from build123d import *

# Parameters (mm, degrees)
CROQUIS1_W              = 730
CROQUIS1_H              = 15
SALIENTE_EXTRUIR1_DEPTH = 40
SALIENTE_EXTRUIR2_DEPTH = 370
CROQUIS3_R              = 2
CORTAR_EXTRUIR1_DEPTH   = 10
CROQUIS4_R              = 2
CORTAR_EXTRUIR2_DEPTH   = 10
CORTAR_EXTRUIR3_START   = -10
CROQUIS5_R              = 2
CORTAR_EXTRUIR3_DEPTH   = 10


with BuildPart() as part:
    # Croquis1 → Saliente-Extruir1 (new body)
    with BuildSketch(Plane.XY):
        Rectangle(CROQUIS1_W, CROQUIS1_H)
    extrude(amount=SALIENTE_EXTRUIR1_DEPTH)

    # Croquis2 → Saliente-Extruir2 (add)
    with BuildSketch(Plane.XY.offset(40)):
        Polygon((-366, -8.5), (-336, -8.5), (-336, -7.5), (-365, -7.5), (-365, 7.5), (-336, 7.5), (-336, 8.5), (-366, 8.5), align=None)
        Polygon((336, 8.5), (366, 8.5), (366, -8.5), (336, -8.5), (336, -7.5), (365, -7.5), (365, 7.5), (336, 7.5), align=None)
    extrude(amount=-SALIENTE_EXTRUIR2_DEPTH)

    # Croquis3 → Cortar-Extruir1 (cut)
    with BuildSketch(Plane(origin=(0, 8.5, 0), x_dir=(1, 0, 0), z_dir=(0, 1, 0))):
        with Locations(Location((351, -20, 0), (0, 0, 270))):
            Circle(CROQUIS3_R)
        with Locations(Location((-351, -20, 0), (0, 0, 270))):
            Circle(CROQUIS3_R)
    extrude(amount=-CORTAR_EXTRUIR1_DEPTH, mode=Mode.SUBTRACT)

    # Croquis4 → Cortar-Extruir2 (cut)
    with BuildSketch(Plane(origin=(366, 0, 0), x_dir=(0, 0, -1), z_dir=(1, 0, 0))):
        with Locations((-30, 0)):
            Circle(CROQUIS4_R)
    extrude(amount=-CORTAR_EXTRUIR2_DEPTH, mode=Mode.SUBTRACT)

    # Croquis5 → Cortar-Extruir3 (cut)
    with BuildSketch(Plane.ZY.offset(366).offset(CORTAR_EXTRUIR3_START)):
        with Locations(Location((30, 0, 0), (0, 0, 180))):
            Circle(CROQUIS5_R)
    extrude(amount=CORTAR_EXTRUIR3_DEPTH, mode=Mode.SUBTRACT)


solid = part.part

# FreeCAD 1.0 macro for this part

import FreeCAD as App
import Part
import Sketcher
Q = App.Units.Quantity


def add_polygon(sketch, points):
    """Adds a closed chain of lines whose ends are joined by coincident constraints."""
    first, n = sketch.GeometryCount, len(points)
    for a, b in zip(points, points[1:] + points[:1]):
        sketch.addGeometry(Part.LineSegment(App.Vector(*a, 0), App.Vector(*b, 0)), False)
    for i in range(n):
        sketch.addConstraint(Sketcher.Constraint("Coincident", first + i, 2, first + (i + 1) % n, 1))

doc = App.newDocument("Part")
body = doc.addObject("PartDesign::Body", "Body")

sketch1 = body.newObject("Sketcher::SketchObject", "Sketch")
sketch1.AttachmentSupport = (doc.getObject("XY_Plane"), [""])
sketch1.MapMode = "FlatFace"
add_polygon(sketch1, [(-365, 8), (-365, -8), (365, -8), (365, 8)])
sketch1.addConstraint([
    Sketcher.Constraint("Vertical", 0),
    Sketcher.Constraint("Horizontal", 1),
    Sketcher.Constraint("Vertical", 2),
    Sketcher.Constraint("Horizontal", 3),
    Sketcher.Constraint("Symmetric", 0, 2, 2, 2, -1, 1),
    Sketcher.Constraint("DistanceX", 1, 1, 1, 2, Q("730 mm")),
    Sketcher.Constraint("DistanceY", 0, 2, 0, 1, Q("15 mm")),
])
pad1 = body.newObject("PartDesign::Pad", "Pad")
pad1.Profile = sketch1
pad1.Length = 40

sketch2 = body.newObject("Sketcher::SketchObject", "Sketch001")
sketch2.AttachmentSupport = (doc.getObject("XY_Plane"), [""])
sketch2.MapMode = "FlatFace"
sketch2.AttachmentOffset = App.Placement(App.Vector(0, 0, 40), App.Rotation())
add_polygon(sketch2, [(-366, -8.5), (-336, -8.5), (-336, -7.5), (-365, -7.5), (-365, 7.5), (-336, 7.5), (-336, 8.5), (-366, 8.5)])
add_polygon(sketch2, [(366, 8.5), (336, 8.5), (336, 7.5), (365, 7.5), (365, -7.5), (336, -7.5), (336, -8.5), (366, -8.5)])
sketch2.addConstraint([
    Sketcher.Constraint("Horizontal", 0),
    Sketcher.Constraint("Vertical", 1),
    Sketcher.Constraint("Horizontal", 2),
    Sketcher.Constraint("Vertical", 3),
    Sketcher.Constraint("Horizontal", 4),
    Sketcher.Constraint("Vertical", 5),
    Sketcher.Constraint("Horizontal", 6),
    Sketcher.Constraint("Vertical", 7),
    Sketcher.Constraint("Horizontal", 8),
    Sketcher.Constraint("Vertical", 9),
    Sketcher.Constraint("Horizontal", 10),
    Sketcher.Constraint("Vertical", 11),
    Sketcher.Constraint("Horizontal", 12),
    Sketcher.Constraint("Vertical", 13),
    Sketcher.Constraint("Horizontal", 14),
    Sketcher.Constraint("Vertical", 15),
    Sketcher.Constraint("Symmetric", 0, 2, 8, 2, -1, 1),
    Sketcher.Constraint("Symmetric", 2, 2, 10, 2, -1, 1),
    Sketcher.Constraint("Symmetric", 4, 2, 12, 2, -1, 1),
    Sketcher.Constraint("Symmetric", 6, 2, 14, 2, -1, 1),
    Sketcher.Constraint("Symmetric", 5, 2, 8, 2, -2),
    Sketcher.Constraint("Horizontal", 4, 2, 9, 2),
    Sketcher.Constraint("DistanceX", 0, 1, 0, 2, Q("30 mm")),
    Sketcher.Constraint("DistanceX", 2, 2, 2, 1, Q("29 mm")),
    Sketcher.Constraint("DistanceY", 1, 1, 1, 2, Q("1 mm")),
    Sketcher.Constraint("DistanceY", 3, 1, 3, 2, Q("15 mm")),
    Sketcher.Constraint("DistanceX", 0, 2, -1, 1, Q("336 mm")),
])
pad2 = body.newObject("PartDesign::Pad", "Pad001")
pad2.Profile = sketch2
pad2.Length = 370
pad2.Reversed = True

sketch3 = body.newObject("Sketcher::SketchObject", "Sketch002")
sketch3.AttachmentSupport = (doc.getObject("XZ_Plane"), [""])
sketch3.MapMode = "FlatFace"
sketch3.AttachmentOffset = App.Placement(App.Vector(0, 0, -8.5), App.Rotation())
sketch3.addGeometry([
    Part.Circle(App.Vector(351, 20, 0), App.Vector(0, 0, 1), 2),
    Part.Circle(App.Vector(-351, 20, 0), App.Vector(0, 0, 1), 2),
], False)
sketch3.addConstraint([
    Sketcher.Constraint("Equal", 0, 1),
    Sketcher.Constraint("Symmetric", 0, 3, 1, 3, -2),
    Sketcher.Constraint("Diameter", 0, Q("4 mm")),
    Sketcher.Constraint("DistanceX", -1, 1, 0, 3, Q("351 mm")),
    Sketcher.Constraint("DistanceY", -1, 1, 0, 3, Q("20 mm")),
])
pocket1 = body.newObject("PartDesign::Pocket", "Pocket")
pocket1.Profile = sketch3
pocket1.Length = 10
pocket1.Reversed = True

sketch4 = body.newObject("Sketcher::SketchObject", "Sketch003")
sketch4.AttachmentSupport = (doc.getObject("YZ_Plane"), [""])
sketch4.MapMode = "FlatFace"
sketch4.AttachmentOffset = App.Placement(App.Vector(0, 0, 366), App.Rotation())
sketch4.addGeometry(Part.Circle(App.Vector(0, 30, 0), App.Vector(0, 0, 1), 2), False)
sketch4.addConstraint([
    Sketcher.Constraint("PointOnObject", 0, 3, -2),
    Sketcher.Constraint("Diameter", 0, Q("4 mm")),
    Sketcher.Constraint("DistanceY", -1, 1, 0, 3, Q("30 mm")),
])
pocket2 = body.newObject("PartDesign::Pocket", "Pocket001")
pocket2.Profile = sketch4
pocket2.Length = 10

sketch5 = body.newObject("Sketcher::SketchObject", "Sketch004")
sketch5.AttachmentSupport = (doc.getObject("YZ_Plane"), [""])
sketch5.MapMode = "FlatFace"
sketch5.AttachmentOffset = App.Placement(App.Vector(0, 0, -356), App.Rotation())
sketch5.addGeometry(Part.Circle(App.Vector(0, 30, 0), App.Vector(0, 0, 1), 2), False)
sketch5.addConstraint([
    Sketcher.Constraint("PointOnObject", 0, 3, -2),
    Sketcher.Constraint("Diameter", 0, Q("4 mm")),
    Sketcher.Constraint("DistanceY", -1, 1, 0, 3, Q("30 mm")),
])
pocket3 = body.newObject("PartDesign::Pocket", "Pocket002")
pocket3.Profile = sketch5
pocket3.Length = 10

doc.recompute()
